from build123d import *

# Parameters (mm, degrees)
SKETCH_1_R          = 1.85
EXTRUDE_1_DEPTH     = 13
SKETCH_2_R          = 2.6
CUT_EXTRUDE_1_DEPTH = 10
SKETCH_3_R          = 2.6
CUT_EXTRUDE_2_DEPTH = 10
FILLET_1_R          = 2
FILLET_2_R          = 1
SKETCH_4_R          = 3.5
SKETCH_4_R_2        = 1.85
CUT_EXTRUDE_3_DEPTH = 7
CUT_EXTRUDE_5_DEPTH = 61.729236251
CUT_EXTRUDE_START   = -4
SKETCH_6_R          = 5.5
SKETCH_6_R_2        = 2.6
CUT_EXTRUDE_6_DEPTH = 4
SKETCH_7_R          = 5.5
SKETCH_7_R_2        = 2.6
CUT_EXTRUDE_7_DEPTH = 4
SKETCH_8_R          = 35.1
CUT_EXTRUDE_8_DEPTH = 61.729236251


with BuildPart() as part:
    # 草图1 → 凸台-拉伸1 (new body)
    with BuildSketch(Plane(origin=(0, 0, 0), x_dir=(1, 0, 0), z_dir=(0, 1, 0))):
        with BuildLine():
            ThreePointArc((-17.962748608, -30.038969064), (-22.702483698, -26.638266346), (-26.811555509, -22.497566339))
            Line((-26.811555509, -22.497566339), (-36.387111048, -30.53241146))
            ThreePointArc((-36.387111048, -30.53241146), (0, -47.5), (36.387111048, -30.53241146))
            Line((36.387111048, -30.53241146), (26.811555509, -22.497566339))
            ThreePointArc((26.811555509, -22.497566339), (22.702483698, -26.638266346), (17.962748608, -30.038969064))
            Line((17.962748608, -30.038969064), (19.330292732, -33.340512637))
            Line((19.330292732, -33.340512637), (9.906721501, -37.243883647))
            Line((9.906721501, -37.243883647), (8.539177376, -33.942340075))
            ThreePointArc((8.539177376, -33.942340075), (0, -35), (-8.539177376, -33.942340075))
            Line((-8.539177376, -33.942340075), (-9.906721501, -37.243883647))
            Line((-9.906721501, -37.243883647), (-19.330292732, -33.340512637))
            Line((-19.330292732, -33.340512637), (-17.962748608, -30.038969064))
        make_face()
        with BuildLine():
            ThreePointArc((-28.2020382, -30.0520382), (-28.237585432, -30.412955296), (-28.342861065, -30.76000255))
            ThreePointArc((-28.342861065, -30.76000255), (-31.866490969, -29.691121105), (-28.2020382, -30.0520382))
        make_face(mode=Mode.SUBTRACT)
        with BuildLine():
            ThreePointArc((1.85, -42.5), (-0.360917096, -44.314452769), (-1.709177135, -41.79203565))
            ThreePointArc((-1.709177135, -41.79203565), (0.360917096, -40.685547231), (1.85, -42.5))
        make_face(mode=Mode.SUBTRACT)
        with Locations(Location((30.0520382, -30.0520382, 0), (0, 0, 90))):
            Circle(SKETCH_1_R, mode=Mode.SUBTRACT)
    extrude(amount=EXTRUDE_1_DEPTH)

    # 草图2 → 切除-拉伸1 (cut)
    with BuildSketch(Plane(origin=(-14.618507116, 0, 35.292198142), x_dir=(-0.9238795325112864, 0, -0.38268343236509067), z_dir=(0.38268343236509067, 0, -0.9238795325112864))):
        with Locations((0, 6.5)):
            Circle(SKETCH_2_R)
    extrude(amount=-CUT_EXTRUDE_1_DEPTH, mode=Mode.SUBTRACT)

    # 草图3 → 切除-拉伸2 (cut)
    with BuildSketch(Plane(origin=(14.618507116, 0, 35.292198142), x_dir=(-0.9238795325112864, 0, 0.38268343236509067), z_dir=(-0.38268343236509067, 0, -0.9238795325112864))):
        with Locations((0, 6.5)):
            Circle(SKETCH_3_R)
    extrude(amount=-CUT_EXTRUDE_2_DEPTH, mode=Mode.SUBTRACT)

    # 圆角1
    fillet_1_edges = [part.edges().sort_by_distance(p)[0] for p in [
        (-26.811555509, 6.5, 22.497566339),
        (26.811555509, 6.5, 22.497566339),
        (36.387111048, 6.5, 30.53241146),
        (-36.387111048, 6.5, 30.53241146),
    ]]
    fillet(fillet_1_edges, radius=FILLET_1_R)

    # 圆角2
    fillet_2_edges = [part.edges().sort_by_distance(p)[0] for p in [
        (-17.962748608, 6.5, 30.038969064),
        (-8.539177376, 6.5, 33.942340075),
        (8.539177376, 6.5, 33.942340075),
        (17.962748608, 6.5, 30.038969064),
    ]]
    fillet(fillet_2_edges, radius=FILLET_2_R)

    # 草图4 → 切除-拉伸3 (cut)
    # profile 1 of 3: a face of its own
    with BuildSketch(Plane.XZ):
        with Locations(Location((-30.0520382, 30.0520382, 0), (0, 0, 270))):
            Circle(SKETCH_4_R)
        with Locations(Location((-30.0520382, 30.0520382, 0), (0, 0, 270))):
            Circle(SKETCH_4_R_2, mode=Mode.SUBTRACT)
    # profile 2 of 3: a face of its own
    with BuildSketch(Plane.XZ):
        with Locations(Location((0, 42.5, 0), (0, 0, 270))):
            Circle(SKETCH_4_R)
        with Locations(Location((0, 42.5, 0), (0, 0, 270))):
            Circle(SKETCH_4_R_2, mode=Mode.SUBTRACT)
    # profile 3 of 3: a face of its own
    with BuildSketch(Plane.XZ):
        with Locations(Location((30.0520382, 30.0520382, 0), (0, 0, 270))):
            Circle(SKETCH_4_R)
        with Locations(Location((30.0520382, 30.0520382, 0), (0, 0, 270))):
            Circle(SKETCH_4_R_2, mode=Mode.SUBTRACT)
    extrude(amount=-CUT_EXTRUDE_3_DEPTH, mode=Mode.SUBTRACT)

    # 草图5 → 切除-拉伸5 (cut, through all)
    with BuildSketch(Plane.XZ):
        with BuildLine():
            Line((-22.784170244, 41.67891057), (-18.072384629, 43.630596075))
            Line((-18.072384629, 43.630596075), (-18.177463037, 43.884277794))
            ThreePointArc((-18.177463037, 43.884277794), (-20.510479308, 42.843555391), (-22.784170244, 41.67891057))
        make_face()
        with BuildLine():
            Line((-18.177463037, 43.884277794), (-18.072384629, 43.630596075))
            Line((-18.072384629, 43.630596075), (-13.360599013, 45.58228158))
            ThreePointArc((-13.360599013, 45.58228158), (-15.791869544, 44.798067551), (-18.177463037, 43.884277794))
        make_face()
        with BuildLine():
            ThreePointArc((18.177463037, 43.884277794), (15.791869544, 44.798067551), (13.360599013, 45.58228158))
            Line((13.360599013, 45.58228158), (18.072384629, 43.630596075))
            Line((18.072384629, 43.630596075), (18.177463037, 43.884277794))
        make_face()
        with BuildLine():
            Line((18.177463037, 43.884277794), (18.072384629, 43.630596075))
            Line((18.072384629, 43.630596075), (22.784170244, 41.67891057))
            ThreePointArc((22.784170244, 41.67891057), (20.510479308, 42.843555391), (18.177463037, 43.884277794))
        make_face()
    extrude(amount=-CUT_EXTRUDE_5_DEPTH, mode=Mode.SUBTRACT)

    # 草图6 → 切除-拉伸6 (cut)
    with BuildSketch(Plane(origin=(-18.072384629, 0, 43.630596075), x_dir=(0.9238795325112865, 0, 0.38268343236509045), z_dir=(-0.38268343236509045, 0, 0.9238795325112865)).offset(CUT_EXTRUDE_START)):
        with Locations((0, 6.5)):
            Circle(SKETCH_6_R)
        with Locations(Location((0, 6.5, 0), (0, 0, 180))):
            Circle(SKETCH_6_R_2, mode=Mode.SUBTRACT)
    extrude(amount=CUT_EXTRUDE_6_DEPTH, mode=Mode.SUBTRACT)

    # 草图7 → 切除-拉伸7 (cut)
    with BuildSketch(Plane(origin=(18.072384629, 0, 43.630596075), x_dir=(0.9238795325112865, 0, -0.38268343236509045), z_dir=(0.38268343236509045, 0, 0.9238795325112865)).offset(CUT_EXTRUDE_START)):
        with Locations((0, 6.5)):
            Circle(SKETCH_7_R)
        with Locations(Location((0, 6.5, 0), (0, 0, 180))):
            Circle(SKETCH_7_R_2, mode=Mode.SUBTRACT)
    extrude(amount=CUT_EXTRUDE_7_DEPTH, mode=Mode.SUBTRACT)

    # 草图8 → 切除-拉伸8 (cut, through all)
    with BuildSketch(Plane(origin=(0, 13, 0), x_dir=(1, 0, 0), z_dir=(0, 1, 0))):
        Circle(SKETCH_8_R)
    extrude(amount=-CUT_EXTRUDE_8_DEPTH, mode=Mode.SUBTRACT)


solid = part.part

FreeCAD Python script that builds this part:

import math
import FreeCAD as App
import Part
import Sketcher
Q = App.Units.Quantity


def edges_at(feature, points):
    """Names of the edges that pass closest to the given points."""
    edges = feature.Shape.Edges
    near = lambda p: min(range(len(edges)), key=lambda i: edges[i].distToShape(Part.Vertex(*p))[0])
    return sorted({f"Edge{near(p) + 1}" for p in points})

doc = App.newDocument("Part")
params = doc.addObject("Spreadsheet::Sheet", "Params")
for row, (alias, value) in enumerate([
    ("sketch1_radius", "35 mm"),
    ("sketch1_diameter", "3.7 mm"),
    ("sketch1_radius2", "47.5 mm"),
    ("sketch1_length", "10.2 mm"),
    ("pad1_length", "13 mm"),
    ("sketch2_diameter", "5.2 mm"),
    ("pocket1_length", "10 mm"),
    ("sketch3_diameter", "5.2 mm"),
    ("pocket2_length", "10 mm"),
    ("fillet_radius", "2 mm"),
    ("fillet2_radius", "1 mm"),
    ("sketch4_diameter", "7 mm"),
    ("sketch4_diameter2", "3.7 mm"),
    ("pocket3_length", "7 mm"),
    ("sketch5_radius", "47.5 mm"),
    ("sketch5_length", "5.1 mm"),
    ("sketch6_diameter", "11 mm"),
    ("sketch6_diameter2", "5.2 mm"),
    ("pocket5_length", "4 mm"),
    ("sketch7_diameter", "11 mm"),
    ("sketch7_diameter2", "5.2 mm"),
    ("pocket6_length", "4 mm"),
    ("sketch8_diameter", "70.2 mm"),
], start=1):
    params.set(f"A{row}", alias)
    params.set(f"B{row}", "=" + value)
    params.setAlias(f"B{row}", alias)

body = doc.addObject("PartDesign::Body", "Body")

sketch1 = body.newObject("Sketcher::SketchObject", "Sketch")
sketch1.AttachmentSupport = (doc.getObject("XZ_Plane"), [""])
sketch1.MapMode = "FlatFace"
sketch1.addGeometry(Part.ArcOfCircle(Part.Circle(App.Vector(0, 0, 0), App.Vector(0, 0, 1), 35), math.radians(120.88), math.radians(140)), False)
sketch1.addGeometry(Part.LineSegment(App.Vector(-26.8, 22.5, 0), App.Vector(-36.4, 30.5, 0)), False)
sketch1.addGeometry(Part.ArcOfCircle(Part.Circle(App.Vector(0, 0, 0), App.Vector(0, 0, 1), 47.5), math.radians(40), math.radians(140)), False)
sketch1.addGeometry(Part.LineSegment(App.Vector(36.4, 30.5, 0), App.Vector(26.8, 22.5, 0)), False)
sketch1.addGeometry(Part.ArcOfCircle(Part.Circle(App.Vector(0, 0, 0), App.Vector(0, 0, 1), 35), math.radians(40), math.radians(59.12)), False)
sketch1.addGeometry(Part.LineSegment(App.Vector(18, 30, 0), App.Vector(19.3, 33.3, 0)), False)
sketch1.addGeometry(Part.LineSegment(App.Vector(19.3, 33.3, 0), App.Vector(9.9, 37.2, 0)), False)
sketch1.addGeometry(Part.LineSegment(App.Vector(9.9, 37.2, 0), App.Vector(8.5, 33.9, 0)), False)
sketch1.addGeometry(Part.ArcOfCircle(Part.Circle(App.Vector(0, 0, 0), App.Vector(0, 0, 1), 35), math.radians(76), math.radians(104)), False)
sketch1.addGeometry(Part.LineSegment(App.Vector(-8.5, 33.9, 0), App.Vector(-9.9, 37.2, 0)), False)
sketch1.addGeometry(Part.LineSegment(App.Vector(-9.9, 37.2, 0), App.Vector(-19.3, 33.3, 0)), False)
sketch1.addGeometry(Part.LineSegment(App.Vector(-19.3, 33.3, 0), App.Vector(-18, 30, 0)), False)
sketch1.addGeometry(Part.ArcOfCircle(Part.Circle(App.Vector(0, 42.5, 0), App.Vector(0, 0, 1), 1.9), math.radians(-157), math.radians(0)), False)
sketch1.addGeometry(Part.ArcOfCircle(Part.Circle(App.Vector(0, 42.5, 0), App.Vector(0, 0, 1), 1.9), math.radians(0), math.radians(203)), False)
sketch1.addGeometry(Part.ArcOfCircle(Part.Circle(App.Vector(-30.1, 30.1, 0), App.Vector(0, 0, 1), 1.9), math.radians(23), math.radians(360)), False)
sketch1.addGeometry(Part.ArcOfCircle(Part.Circle(App.Vector(-30.1, 30.1, 0), App.Vector(0, 0, 1), 1.9), math.radians(0), math.radians(22)), False)
sketch1.addGeometry(Part.Circle(App.Vector(30.1, 30.1, 0), App.Vector(0, 0, 1), 1.9), False)
sketch1.addConstraint(Sketcher.Constraint("Coincident", 0, 2, 1, 1))
sketch1.addConstraint(Sketcher.Constraint("Coincident", 1, 2, 2, 2))
sketch1.addConstraint(Sketcher.Constraint("Coincident", 2, 1, 3, 1))
sketch1.addConstraint(Sketcher.Constraint("Coincident", 3, 2, 4, 1))
sketch1.addConstraint(Sketcher.Constraint("Coincident", 4, 2, 5, 1))
sketch1.addConstraint(Sketcher.Constraint("Coincident", 5, 2, 6, 1))
sketch1.addConstraint(Sketcher.Constraint("Coincident", 6, 2, 7, 1))
sketch1.addConstraint(Sketcher.Constraint("Coincident", 7, 2, 8, 1))
sketch1.addConstraint(Sketcher.Constraint("Coincident", 8, 2, 9, 1))
sketch1.addConstraint(Sketcher.Constraint("Coincident", 9, 2, 10, 1))
sketch1.addConstraint(Sketcher.Constraint("Coincident", 10, 2, 11, 1))
sketch1.addConstraint(Sketcher.Constraint("Coincident", 11, 2, 0, 1))
sketch1.addConstraint(Sketcher.Constraint("Tangent", 12, 1, 13, 2))
sketch1.addConstraint(Sketcher.Constraint("Coincident", 13, 1, 12, 2))
sketch1.addConstraint(Sketcher.Constraint("Tangent", 14, 1, 15, 2))
sketch1.addConstraint(Sketcher.Constraint("Coincident", 15, 1, 14, 2))
sketch1.addConstraint(Sketcher.Constraint("Coincident", 0, 3, -1, 1))
sketch1.addConstraint(Sketcher.Constraint("Coincident", 2, 3, -1, 1))
sketch1.addConstraint(Sketcher.Constraint("Coincident", 4, 3, -1, 1))
sketch1.addConstraint(Sketcher.Constraint("Coincident", 8, 3, -1, 1))
sketch1.addConstraint(Sketcher.Constraint("Equal", 0, 4))
sketch1.addConstraint(Sketcher.Constraint("Equal", 4, 8))
sketch1.addConstraint(Sketcher.Constraint("Equal", 13, 14))
sketch1.addConstraint(Sketcher.Constraint("Equal", 15, 16))
sketch1.addConstraint(Sketcher.Constraint("Symmetric", 14, 3, 16, 3, -2))
sketch1.addConstraint(Sketcher.Constraint("Symmetric", 6, 2, 9, 2, -2))
sketch1.addConstraint(Sketcher.Constraint("Symmetric", 5, 2, 10, 2, -2))
sketch1.addConstraint(Sketcher.Constraint("PointOnObject", 12, 3, -2))
sketch1.addConstraint(Sketcher.Constraint("Perpendicular", 5, 6))
sketch1.addConstraint(Sketcher.Constraint("Perpendicular", 6, 7))
sketch1.addConstraint(Sketcher.Constraint("Perpendicular", 9, 10))
sketch1.addConstraint(Sketcher.Constraint("Perpendicular", 10, 11))
sketch1.addConstraint(Sketcher.Constraint("Horizontal", 1, 2, 2, 1))
sketch1.addConstraint(Sketcher.Constraint("Horizontal", 0, 2, 3, 2))
sketch1.addConstraint(Sketcher.Constraint("Horizontal", 12, 3, 13, 1))
sketch1.addConstraint(Sketcher.Constraint("Horizontal", 16, 3, 15, 1))
sketch1.addConstraint(Sketcher.Constraint("Equal", 5, 7))
sketch1.addConstraint(Sketcher.Constraint("Radius", 0, Q("35 mm")))
sketch1.addConstraint(Sketcher.Constraint("Diameter", 16, Q("3.7 mm")))
sketch1.addConstraint(Sketcher.Constraint("Radius", 2, Q("47.5 mm")))
sketch1.addConstraint(Sketcher.Constraint("Angle", 1, Q("140 deg")))
sketch1.addConstraint(Sketcher.Constraint("Angle", 5, Q("67.5 deg")))
sketch1.addConstraint(Sketcher.Constraint("Distance", 6, Q("10.2 mm")))
sketch1.addConstraint(Sketcher.Constraint("DistanceY", -1, 1, 12, 3, Q("42.5 mm")))
sketch1.addConstraint(Sketcher.Constraint("DistanceX", 8, 2, 12, 1, Q("6.83 mm")))
sketch1.addConstraint(Sketcher.Constraint("DistanceY", 2, 1, 5, 2, Q("2.808101 mm")))
sketch1.addConstraint(Sketcher.Constraint("DistanceX", 8, 2, 6, 2, Q("18.445899 mm")))
sketch1.addConstraint(Sketcher.Constraint("DistanceX", 14, 3, -1, 1, Q("30.052038 mm")))
sketch1.addConstraint(Sketcher.Constraint("DistanceY", -1, 1, 14, 3, Q("30.052038 mm")))
sketch1.addConstraint(Sketcher.Constraint("DistanceX", 14, 1, -1, 1, Q("28.342861 mm")))
sketch1.setExpression("Constraints[37]", "Params.sketch1_radius")
sketch1.setExpression("Constraints[38]", "Params.sketch1_diameter")
sketch1.setExpression("Constraints[39]", "Params.sketch1_radius2")
sketch1.setExpression("Constraints[42]", "Params.sketch1_length")
pad1 = body.newObject("PartDesign::Pad", "Pad")
pad1.Profile = sketch1
pad1.setExpression("Length", "Params.pad1_length")
pad1.Reversed = True

sketch2 = body.newObject("Sketcher::SketchObject", "Sketch001")
sketch2.Placement = App.Placement(App.Vector(-14.618507, 0, 35.292198), App.Rotation(App.Vector(-0.923879533, 0, -0.382683432), App.Vector(0, 1.000000001, 0), App.Vector(0.382683432, 0, -0.923879533), "ZXY"))
sketch2.addGeometry(Part.Circle(App.Vector(0, 6.5, 0), App.Vector(0, 0, 1), 2.6), False)
sketch2.addConstraint(Sketcher.Constraint("PointOnObject", 0, 3, -2))
sketch2.addConstraint(Sketcher.Constraint("Diameter", 0, Q("5.2 mm")))
sketch2.addConstraint(Sketcher.Constraint("DistanceY", -1, 1, 0, 3, Q("6.5 mm")))
sketch2.setExpression("Constraints[1]", "Params.sketch2_diameter")
pocket1 = body.newObject("PartDesign::Pocket", "Pocket")
pocket1.Profile = sketch2
pocket1.setExpression("Length", "Params.pocket1_length")

sketch3 = body.newObject("Sketcher::SketchObject", "Sketch002")
sketch3.Placement = App.Placement(App.Vector(14.618507, 0, 35.292198), App.Rotation(App.Vector(-0.923879533, 0, 0.382683432), App.Vector(0, 1.000000001, 0), App.Vector(-0.382683432, 0, -0.923879533), "ZXY"))
sketch3.addGeometry(Part.Circle(App.Vector(0, 6.5, 0), App.Vector(0, 0, 1), 2.6), False)
sketch3.addConstraint(Sketcher.Constraint("PointOnObject", 0, 3, -2))
sketch3.addConstraint(Sketcher.Constraint("Diameter", 0, Q("5.2 mm")))
sketch3.addConstraint(Sketcher.Constraint("DistanceY", -1, 1, 0, 3, Q("6.5 mm")))
sketch3.setExpression("Constraints[1]", "Params.sketch3_diameter")
pocket2 = body.newObject("PartDesign::Pocket", "Pocket001")
pocket2.Profile = sketch3
pocket2.setExpression("Length", "Params.pocket2_length")
doc.recompute()

fillet = body.newObject("PartDesign::Fillet", "Fillet")
fillet.Base = (pocket2, edges_at(pocket2, [
    (-26.812, 6.5, 22.498),
    (26.812, 6.5, 22.498),
    (36.387, 6.5, 30.532),
    (-36.387, 6.5, 30.532),
]))
fillet.setExpression("Radius", "Params.fillet_radius")
doc.recompute()

fillet2 = body.newObject("PartDesign::Fillet", "Fillet001")
fillet2.Base = (fillet, edges_at(fillet, [
    (-17.963, 6.5, 30.039),
    (-8.539, 6.5, 33.942),
    (8.539, 6.5, 33.942),
    (17.963, 6.5, 30.039),
]))
fillet2.setExpression("Radius", "Params.fillet2_radius")

sketch4 = body.newObject("Sketcher::SketchObject", "Sketch003")
sketch4.AttachmentSupport = (doc.getObject("XZ_Plane"), [""])
sketch4.MapMode = "FlatFace"
sketch4.addGeometry(Part.Circle(App.Vector(-30.1, 30.1, 0), App.Vector(0, 0, 1), 3.5), False)
sketch4.addGeometry(Part.Circle(App.Vector(-30.1, 30.1, 0), App.Vector(0, 0, 1), 1.9), False)
sketch4.addGeometry(Part.Circle(App.Vector(0, 42.5, 0), App.Vector(0, 0, 1), 3.5), False)
sketch4.addGeometry(Part.Circle(App.Vector(0, 42.5, 0), App.Vector(0, 0, 1), 1.9), False)
sketch4.addGeometry(Part.Circle(App.Vector(30.1, 30.1, 0), App.Vector(0, 0, 1), 3.5), False)
sketch4.addGeometry(Part.Circle(App.Vector(30.1, 30.1, 0), App.Vector(0, 0, 1), 1.9), False)
sketch4.addConstraint(Sketcher.Constraint("Coincident", 1, 3, 0, 3))
sketch4.addConstraint(Sketcher.Constraint("Coincident", 3, 3, 2, 3))
sketch4.addConstraint(Sketcher.Constraint("Coincident", 5, 3, 4, 3))
sketch4.addConstraint(Sketcher.Constraint("Equal", 0, 2))
sketch4.addConstraint(Sketcher.Constraint("Equal", 1, 3))
sketch4.addConstraint(Sketcher.Constraint("Equal", 2, 4))
sketch4.addConstraint(Sketcher.Constraint("Equal", 3, 5))
sketch4.addConstraint(Sketcher.Constraint("Symmetric", 0, 3, 4, 3, -2))
sketch4.addConstraint(Sketcher.Constraint("PointOnObject", 2, 3, -2))
sketch4.addConstraint(Sketcher.Constraint("Diameter", 0, Q("7 mm")))
sketch4.addConstraint(Sketcher.Constraint("Diameter", 1, Q("3.7 mm")))
sketch4.addConstraint(Sketcher.Constraint("DistanceY", -1, 1, 2, 3, Q("42.5 mm")))
sketch4.addConstraint(Sketcher.Constraint("DistanceX", 0, 3, -1, 1, Q("30.052038 mm")))
sketch4.addConstraint(Sketcher.Constraint("DistanceY", -1, 1, 0, 3, Q("30.052038 mm")))
sketch4.setExpression("Constraints[9]", "Params.sketch4_diameter")
sketch4.setExpression("Constraints[10]", "Params.sketch4_diameter2")
pocket3 = body.newObject("PartDesign::Pocket", "Pocket002")
pocket3.Profile = sketch4
pocket3.setExpression("Length", "Params.pocket3_length")

sketch5 = body.newObject("Sketcher::SketchObject", "Sketch004")
sketch5.AttachmentSupport = (doc.getObject("XZ_Plane"), [""])
sketch5.MapMode = "FlatFace"
sketch5.addGeometry(Part.LineSegment(App.Vector(-23, 42, 0), App.Vector(-18, 44, 0)), False)
sketch5.addGeometry(Part.LineSegment(App.Vector(-18, 44, 0), App.Vector(-13, 46, 0)), False)
sketch5.addGeometry(Part.ArcOfCircle(Part.Circle(App.Vector(0, 0, 0), App.Vector(0, 0, 1), 47), math.radians(106.34), math.radians(112.5)), False)
sketch5.addGeometry(Part.ArcOfCircle(Part.Circle(App.Vector(0, 0, 0), App.Vector(0, 0, 1), 48), math.radians(112.5), math.radians(118.66)), False)
sketch5.addGeometry(Part.ArcOfCircle(Part.Circle(App.Vector(0, 0, 0), App.Vector(0, 0, 1), 47), math.radians(67.5), math.radians(73.66)), False)
sketch5.addGeometry(Part.LineSegment(App.Vector(13, 46, 0), App.Vector(18, 44, 0)), False)
sketch5.addGeometry(Part.LineSegment(App.Vector(18, 44, 0), App.Vector(23, 42, 0)), False)
sketch5.addGeometry(Part.ArcOfCircle(Part.Circle(App.Vector(0, 0, 0), App.Vector(0, 0, 1), 48), math.radians(61.34), math.radians(67.5)), False)
sketch5.addConstraint(Sketcher.Constraint("Coincident", 0, 2, 1, 1))
sketch5.addConstraint(Sketcher.Constraint("Coincident", 1, 2, 2, 1))
sketch5.addConstraint(Sketcher.Constraint("Tangent", 2, 2, 3, 1))
sketch5.addConstraint(Sketcher.Constraint("Coincident", 3, 2, 0, 1))
sketch5.addConstraint(Sketcher.Constraint("Coincident", 4, 2, 5, 1))
sketch5.addConstraint(Sketcher.Constraint("Coincident", 5, 2, 6, 1))
sketch5.addConstraint(Sketcher.Constraint("Coincident", 6, 2, 7, 1))
sketch5.addConstraint(Sketcher.Constraint("Tangent", 7, 2, 4, 1))
sketch5.addConstraint(Sketcher.Constraint("Coincident", 2, 3, -1, 1))
sketch5.addConstraint(Sketcher.Constraint("Coincident", 4, 3, -1, 1))
sketch5.addConstraint(Sketcher.Constraint("Equal", 2, 3))
sketch5.addConstraint(Sketcher.Constraint("Equal", 3, 4))
sketch5.addConstraint(Sketcher.Constraint("Equal", 4, 7))
sketch5.addConstraint(Sketcher.Constraint("Symmetric", 0, 2, 5, 2, -2))
sketch5.addConstraint(Sketcher.Constraint("Parallel", 0, 1))
sketch5.addConstraint(Sketcher.Constraint("Parallel", 5, 6))
sketch5.addConstraint(Sketcher.Constraint("Horizontal", 1, 2, 4, 2))
sketch5.addConstraint(Sketcher.Constraint("Horizontal", 2, 2, 7, 2))
sketch5.addConstraint(Sketcher.Constraint("Equal", 0, 1))
sketch5.addConstraint(Sketcher.Constraint("Radius", 2, Q("47.5 mm")))
sketch5.addConstraint(Sketcher.Constraint("Angle", 0, Q("22.5 deg")))
sketch5.addConstraint(Sketcher.Constraint("Distance", 0, Q("5.1 mm")))
sketch5.addConstraint(Sketcher.Constraint("DistanceX", 2, 2, 0, 2, Q("0.105078 mm")))
sketch5.setExpression("Constraints[19]", "Params.sketch5_radius")
sketch5.setExpression("Constraints[21]", "Params.sketch5_length")
pocket4 = body.newObject("PartDesign::Pocket", "Pocket003")
pocket4.Profile = sketch5
pocket4.Type = "ThroughAll"

sketch6 = body.newObject("Sketcher::SketchObject", "Sketch005")
sketch6.Placement = App.Placement(App.Vector(-16.541651, 0, 39.935078), App.Rotation(App.Vector(0.923879533, 0, 0.382683432), App.Vector(0, 1.000000001, 0), App.Vector(-0.382683432, 0, 0.923879533), "ZXY"))
sketch6.addGeometry(Part.Circle(App.Vector(0, 6.5, 0), App.Vector(0, 0, 1), 5.5), False)
sketch6.addGeometry(Part.Circle(App.Vector(0, 6.5, 0), App.Vector(0, 0, 1), 2.6), False)
sketch6.addConstraint(Sketcher.Constraint("Coincident", 1, 3, 0, 3))
sketch6.addConstraint(Sketcher.Constraint("PointOnObject", 0, 3, -2))
sketch6.addConstraint(Sketcher.Constraint("Diameter", 0, Q("11 mm")))
sketch6.addConstraint(Sketcher.Constraint("Diameter", 1, Q("5.2 mm")))
sketch6.addConstraint(Sketcher.Constraint("DistanceY", -1, 1, 0, 3, Q("6.5 mm")))
sketch6.setExpression("Constraints[2]", "Params.sketch6_diameter")
sketch6.setExpression("Constraints[3]", "Params.sketch6_diameter2")
pocket5 = body.newObject("PartDesign::Pocket", "Pocket004")
pocket5.Profile = sketch6
pocket5.setExpression("Length", "Params.pocket5_length")
pocket5.Reversed = True

sketch7 = body.newObject("Sketcher::SketchObject", "Sketch006")
sketch7.Placement = App.Placement(App.Vector(16.541651, 0, 39.935078), App.Rotation(App.Vector(0.923879533, 0, -0.382683432), App.Vector(0, 1.000000001, 0), App.Vector(0.382683432, 0, 0.923879533), "ZXY"))
sketch7.addGeometry(Part.Circle(App.Vector(0, 6.5, 0), App.Vector(0, 0, 1), 5.5), False)
sketch7.addGeometry(Part.Circle(App.Vector(0, 6.5, 0), App.Vector(0, 0, 1), 2.6), False)
sketch7.addConstraint(Sketcher.Constraint("Coincident", 1, 3, 0, 3))
sketch7.addConstraint(Sketcher.Constraint("PointOnObject", 0, 3, -2))
sketch7.addConstraint(Sketcher.Constraint("Diameter", 0, Q("11 mm")))
sketch7.addConstraint(Sketcher.Constraint("Diameter", 1, Q("5.2 mm")))
sketch7.addConstraint(Sketcher.Constraint("DistanceY", -1, 1, 0, 3, Q("6.5 mm")))
sketch7.setExpression("Constraints[2]", "Params.sketch7_diameter")
sketch7.setExpression("Constraints[3]", "Params.sketch7_diameter2")
pocket6 = body.newObject("PartDesign::Pocket", "Pocket005")
pocket6.Profile = sketch7
pocket6.setExpression("Length", "Params.pocket6_length")
pocket6.Reversed = True

sketch8 = body.newObject("Sketcher::SketchObject", "Sketch007")
sketch8.AttachmentSupport = (doc.getObject("XZ_Plane"), [""])
sketch8.MapMode = "FlatFace"
sketch8.AttachmentOffset = App.Placement(App.Vector(0, 0, -13), App.Rotation())
sketch8.addGeometry(Part.Circle(App.Vector(0, 0, 0), App.Vector(0, 0, 1), 35), False)
sketch8.addConstraint(Sketcher.Constraint("Coincident", 0, 3, -1, 1))
sketch8.addConstraint(Sketcher.Constraint("Diameter", 0, Q("70.2 mm")))
sketch8.setExpression("Constraints[1]", "Params.sketch8_diameter")
pocket7 = body.newObject("PartDesign::Pocket", "Pocket006")
pocket7.Profile = sketch8
pocket7.Type = "ThroughAll"
pocket7.Reversed = True

doc.recompute()
